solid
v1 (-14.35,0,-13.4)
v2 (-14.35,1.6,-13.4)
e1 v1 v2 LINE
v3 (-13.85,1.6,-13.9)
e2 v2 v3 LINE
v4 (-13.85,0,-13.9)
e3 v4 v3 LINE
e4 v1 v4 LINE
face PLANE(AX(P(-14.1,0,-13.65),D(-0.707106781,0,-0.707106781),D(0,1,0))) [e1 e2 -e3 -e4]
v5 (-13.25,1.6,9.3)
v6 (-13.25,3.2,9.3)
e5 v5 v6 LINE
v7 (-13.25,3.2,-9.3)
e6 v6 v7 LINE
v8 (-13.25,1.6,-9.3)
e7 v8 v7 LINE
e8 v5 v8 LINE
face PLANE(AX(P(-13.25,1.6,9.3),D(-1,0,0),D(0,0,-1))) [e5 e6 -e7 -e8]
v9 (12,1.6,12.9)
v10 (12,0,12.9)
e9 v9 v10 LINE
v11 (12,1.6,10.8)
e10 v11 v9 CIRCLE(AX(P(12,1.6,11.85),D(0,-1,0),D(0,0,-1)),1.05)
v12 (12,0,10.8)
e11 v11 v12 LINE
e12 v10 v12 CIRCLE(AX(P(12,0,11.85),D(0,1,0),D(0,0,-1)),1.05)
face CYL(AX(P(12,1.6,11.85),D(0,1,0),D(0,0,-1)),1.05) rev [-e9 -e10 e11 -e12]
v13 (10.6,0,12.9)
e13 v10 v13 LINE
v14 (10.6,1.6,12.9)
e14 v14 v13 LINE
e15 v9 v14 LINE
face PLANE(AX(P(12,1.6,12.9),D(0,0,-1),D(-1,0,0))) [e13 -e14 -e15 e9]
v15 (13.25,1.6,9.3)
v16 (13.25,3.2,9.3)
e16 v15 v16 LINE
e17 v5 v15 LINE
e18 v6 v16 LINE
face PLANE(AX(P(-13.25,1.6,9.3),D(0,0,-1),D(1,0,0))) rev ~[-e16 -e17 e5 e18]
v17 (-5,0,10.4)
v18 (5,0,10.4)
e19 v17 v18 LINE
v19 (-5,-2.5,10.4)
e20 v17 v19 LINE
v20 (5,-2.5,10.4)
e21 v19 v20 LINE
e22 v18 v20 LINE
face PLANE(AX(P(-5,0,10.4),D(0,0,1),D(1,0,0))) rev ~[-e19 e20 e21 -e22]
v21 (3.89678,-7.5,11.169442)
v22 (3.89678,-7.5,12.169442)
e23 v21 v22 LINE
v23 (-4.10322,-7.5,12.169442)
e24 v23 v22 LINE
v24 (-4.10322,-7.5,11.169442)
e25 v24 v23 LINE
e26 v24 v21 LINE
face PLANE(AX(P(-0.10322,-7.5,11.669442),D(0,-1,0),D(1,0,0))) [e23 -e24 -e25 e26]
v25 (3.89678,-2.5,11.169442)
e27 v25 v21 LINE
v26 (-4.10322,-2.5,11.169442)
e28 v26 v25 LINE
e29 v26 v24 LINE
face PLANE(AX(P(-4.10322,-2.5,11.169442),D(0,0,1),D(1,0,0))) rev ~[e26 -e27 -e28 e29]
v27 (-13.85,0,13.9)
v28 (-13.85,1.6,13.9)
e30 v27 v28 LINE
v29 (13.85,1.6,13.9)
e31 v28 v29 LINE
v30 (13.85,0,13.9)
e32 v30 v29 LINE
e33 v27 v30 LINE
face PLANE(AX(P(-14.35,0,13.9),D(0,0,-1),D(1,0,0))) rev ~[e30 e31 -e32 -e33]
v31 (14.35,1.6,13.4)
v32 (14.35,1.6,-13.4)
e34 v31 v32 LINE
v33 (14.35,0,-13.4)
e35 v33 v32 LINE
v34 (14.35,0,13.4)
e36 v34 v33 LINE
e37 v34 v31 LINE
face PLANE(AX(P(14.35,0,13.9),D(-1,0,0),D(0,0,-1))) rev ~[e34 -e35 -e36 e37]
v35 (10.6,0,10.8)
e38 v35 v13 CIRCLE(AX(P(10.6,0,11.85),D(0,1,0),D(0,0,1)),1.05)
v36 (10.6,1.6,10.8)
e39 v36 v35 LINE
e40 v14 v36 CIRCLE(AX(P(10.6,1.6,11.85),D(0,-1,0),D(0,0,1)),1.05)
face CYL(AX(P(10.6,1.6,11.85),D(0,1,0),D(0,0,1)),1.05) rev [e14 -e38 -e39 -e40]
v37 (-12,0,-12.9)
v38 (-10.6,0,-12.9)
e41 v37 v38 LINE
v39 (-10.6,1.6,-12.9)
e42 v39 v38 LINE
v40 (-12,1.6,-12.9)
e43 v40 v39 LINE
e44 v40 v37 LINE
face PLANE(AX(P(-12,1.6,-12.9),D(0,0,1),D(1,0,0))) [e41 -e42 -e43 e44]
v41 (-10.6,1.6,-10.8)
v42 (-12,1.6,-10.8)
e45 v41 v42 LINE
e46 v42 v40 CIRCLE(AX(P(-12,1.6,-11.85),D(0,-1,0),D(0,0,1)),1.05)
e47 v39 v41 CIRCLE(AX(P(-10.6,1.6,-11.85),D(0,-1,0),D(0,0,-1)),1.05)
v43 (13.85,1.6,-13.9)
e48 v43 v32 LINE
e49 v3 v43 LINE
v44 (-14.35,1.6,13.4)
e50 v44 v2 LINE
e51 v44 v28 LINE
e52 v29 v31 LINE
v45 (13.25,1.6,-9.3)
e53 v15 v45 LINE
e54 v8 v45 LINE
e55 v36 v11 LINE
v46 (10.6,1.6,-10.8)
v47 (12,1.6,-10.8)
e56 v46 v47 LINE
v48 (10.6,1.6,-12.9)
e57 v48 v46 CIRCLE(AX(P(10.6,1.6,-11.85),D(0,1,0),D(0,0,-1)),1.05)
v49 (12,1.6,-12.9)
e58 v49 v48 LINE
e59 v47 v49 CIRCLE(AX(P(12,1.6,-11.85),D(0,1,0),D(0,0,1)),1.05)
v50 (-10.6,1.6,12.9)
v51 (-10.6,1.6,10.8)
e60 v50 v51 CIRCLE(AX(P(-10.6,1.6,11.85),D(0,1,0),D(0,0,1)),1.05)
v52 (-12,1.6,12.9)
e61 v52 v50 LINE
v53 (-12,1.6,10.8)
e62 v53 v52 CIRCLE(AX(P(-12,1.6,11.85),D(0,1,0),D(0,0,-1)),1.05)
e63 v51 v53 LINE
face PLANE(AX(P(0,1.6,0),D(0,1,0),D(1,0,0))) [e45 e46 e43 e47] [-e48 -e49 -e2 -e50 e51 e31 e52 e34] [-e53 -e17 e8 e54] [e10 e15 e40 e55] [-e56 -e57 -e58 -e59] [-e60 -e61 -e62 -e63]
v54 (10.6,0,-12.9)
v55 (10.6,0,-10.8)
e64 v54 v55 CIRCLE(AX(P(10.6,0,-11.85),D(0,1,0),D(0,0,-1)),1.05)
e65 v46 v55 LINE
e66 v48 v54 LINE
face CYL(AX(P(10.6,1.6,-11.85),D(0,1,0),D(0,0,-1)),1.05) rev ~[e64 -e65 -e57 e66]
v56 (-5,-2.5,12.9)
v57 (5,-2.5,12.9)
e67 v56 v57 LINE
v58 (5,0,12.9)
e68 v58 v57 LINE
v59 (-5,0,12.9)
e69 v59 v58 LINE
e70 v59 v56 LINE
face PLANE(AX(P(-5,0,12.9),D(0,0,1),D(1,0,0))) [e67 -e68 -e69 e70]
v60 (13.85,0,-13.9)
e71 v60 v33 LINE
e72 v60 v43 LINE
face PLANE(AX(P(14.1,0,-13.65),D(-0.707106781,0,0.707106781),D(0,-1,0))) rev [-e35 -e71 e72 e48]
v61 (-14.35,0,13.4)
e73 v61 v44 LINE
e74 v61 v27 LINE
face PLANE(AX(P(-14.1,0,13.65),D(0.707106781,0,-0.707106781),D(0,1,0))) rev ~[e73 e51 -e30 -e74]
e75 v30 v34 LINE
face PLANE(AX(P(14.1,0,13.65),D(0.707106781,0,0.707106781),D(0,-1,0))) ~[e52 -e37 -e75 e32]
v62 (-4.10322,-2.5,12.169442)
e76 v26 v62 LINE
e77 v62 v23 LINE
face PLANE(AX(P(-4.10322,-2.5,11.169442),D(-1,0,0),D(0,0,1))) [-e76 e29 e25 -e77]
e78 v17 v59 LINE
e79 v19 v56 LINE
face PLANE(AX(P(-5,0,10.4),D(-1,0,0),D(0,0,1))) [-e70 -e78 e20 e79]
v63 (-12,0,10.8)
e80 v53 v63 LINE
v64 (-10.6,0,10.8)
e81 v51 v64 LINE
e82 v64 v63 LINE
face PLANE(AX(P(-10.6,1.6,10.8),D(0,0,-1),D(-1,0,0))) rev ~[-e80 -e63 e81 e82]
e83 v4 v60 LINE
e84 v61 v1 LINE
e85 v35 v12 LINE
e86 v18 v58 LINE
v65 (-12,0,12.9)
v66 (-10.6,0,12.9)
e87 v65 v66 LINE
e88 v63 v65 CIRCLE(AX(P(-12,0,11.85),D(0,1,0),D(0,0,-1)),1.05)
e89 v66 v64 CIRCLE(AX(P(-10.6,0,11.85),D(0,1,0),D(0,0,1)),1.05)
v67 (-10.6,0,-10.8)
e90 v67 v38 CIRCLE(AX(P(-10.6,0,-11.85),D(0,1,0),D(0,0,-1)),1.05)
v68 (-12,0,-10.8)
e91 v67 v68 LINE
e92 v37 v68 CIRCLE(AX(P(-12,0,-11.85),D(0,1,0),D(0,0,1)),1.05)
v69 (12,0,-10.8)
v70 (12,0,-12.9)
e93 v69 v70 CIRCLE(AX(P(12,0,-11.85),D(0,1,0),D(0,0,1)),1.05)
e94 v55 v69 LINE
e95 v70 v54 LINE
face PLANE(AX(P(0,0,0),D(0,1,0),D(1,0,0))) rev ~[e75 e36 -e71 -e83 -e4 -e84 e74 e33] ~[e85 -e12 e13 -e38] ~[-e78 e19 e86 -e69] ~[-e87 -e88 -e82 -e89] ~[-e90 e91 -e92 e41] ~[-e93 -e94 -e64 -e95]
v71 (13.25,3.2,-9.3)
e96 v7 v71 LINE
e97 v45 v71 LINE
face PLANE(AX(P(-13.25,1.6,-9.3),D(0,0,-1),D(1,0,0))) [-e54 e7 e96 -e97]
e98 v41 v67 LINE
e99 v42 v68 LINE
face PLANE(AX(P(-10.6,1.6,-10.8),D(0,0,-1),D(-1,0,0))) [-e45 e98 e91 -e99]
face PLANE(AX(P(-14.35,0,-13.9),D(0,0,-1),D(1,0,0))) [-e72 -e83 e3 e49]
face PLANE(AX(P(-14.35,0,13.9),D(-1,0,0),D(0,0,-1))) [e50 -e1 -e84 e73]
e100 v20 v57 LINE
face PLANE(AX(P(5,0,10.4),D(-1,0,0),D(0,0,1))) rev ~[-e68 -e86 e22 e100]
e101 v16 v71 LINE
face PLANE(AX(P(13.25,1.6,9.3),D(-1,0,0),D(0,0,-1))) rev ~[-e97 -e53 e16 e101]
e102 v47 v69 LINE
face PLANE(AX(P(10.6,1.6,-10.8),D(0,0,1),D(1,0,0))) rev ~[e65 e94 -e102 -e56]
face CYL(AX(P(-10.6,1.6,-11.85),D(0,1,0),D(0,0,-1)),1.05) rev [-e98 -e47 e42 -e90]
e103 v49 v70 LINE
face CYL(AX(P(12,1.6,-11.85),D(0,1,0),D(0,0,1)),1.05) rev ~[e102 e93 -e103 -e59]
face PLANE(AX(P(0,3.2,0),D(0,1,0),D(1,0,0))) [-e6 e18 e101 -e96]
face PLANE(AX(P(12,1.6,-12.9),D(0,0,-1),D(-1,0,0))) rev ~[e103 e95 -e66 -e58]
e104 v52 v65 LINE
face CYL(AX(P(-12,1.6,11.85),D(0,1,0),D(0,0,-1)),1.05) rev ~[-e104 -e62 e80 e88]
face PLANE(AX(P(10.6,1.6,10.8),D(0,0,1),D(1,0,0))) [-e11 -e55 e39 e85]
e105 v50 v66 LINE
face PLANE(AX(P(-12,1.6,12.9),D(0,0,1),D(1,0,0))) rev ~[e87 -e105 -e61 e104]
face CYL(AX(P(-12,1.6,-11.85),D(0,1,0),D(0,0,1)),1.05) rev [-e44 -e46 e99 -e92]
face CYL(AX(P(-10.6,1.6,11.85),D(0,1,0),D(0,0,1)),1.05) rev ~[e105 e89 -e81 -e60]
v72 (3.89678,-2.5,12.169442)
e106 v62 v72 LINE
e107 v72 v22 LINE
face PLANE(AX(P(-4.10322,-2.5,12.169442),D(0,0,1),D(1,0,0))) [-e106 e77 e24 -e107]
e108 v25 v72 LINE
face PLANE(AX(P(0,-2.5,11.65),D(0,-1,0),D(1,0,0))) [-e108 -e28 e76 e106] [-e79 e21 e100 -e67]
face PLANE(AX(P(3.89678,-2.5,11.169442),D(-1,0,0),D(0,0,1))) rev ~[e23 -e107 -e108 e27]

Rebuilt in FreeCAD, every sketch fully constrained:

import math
import FreeCAD as App
import Part
import Sketcher
Q = App.Units.Quantity


def edges_at(feature, points):
    """Names of the edges that pass closest to the given points."""
    edges = feature.Shape.Edges
    near = lambda p: min(range(len(edges)), key=lambda i: edges[i].distToShape(Part.Vertex(*p))[0])
    return sorted({f"Edge{near(p) + 1}" for p in points})


def add_polygon(sketch, points):
    """Adds a closed chain of lines whose ends are joined by coincident constraints."""
    first, n = sketch.GeometryCount, len(points)
    for a, b in zip(points, points[1:] + points[:1]):
        sketch.addGeometry(Part.LineSegment(App.Vector(*a, 0), App.Vector(*b, 0)), False)
    for i in range(n):
        sketch.addConstraint(Sketcher.Constraint("Coincident", first + i, 2, first + (i + 1) % n, 1))

doc = App.newDocument("Part")
body = doc.addObject("PartDesign::Body", "Body")

sketch1 = body.newObject("Sketcher::SketchObject", "Sketch")
sketch1.AttachmentSupport = (doc.getObject("XZ_Plane"), [""])
sketch1.MapMode = "FlatFace"
add_polygon(sketch1, [(-14.35, -13.9), (-14.35, 13.9), (14.35, 13.9), (14.35, -13.9)])
sketch1.addConstraint(Sketcher.Constraint("Vertical", 0))
sketch1.addConstraint(Sketcher.Constraint("Horizontal", 1))
sketch1.addConstraint(Sketcher.Constraint("Vertical", 2))
sketch1.addConstraint(Sketcher.Constraint("Horizontal", 3))
sketch1.addConstraint(Sketcher.Constraint("Symmetric", 0, 2, 2, 2, -1, 1))
sketch1.addConstraint(Sketcher.Constraint("DistanceX", 1, 1, 1, 2, Q("28.7 mm")))
sketch1.addConstraint(Sketcher.Constraint("DistanceY", 0, 1, 0, 2, Q("27.8 mm")))
pad1 = body.newObject("PartDesign::Pad", "Pad")
pad1.Profile = sketch1
pad1.Length = 1.6
pad1.Reversed = True

sketch2 = body.newObject("Sketcher::SketchObject", "Sketch001")
sketch2.AttachmentSupport = (doc.getObject("XZ_Plane"), [""])
sketch2.MapMode = "FlatFace"
sketch2.AttachmentOffset = App.Placement(App.Vector(0, 0, -1.6), App.Rotation())
add_polygon(sketch2, [(-13.25, -9.3), (-13.25, 9.3), (13.25, 9.3), (13.25, -9.3)])
sketch2.addConstraint(Sketcher.Constraint("Vertical", 0))
sketch2.addConstraint(Sketcher.Constraint("Horizontal", 1))
sketch2.addConstraint(Sketcher.Constraint("Vertical", 2))
sketch2.addConstraint(Sketcher.Constraint("Horizontal", 3))
sketch2.addConstraint(Sketcher.Constraint("Symmetric", 0, 2, 2, 2, -1, 1))
sketch2.addConstraint(Sketcher.Constraint("DistanceX", 1, 1, 1, 2, Q("26.5 mm")))
sketch2.addConstraint(Sketcher.Constraint("DistanceY", 0, 1, 0, 2, Q("18.6 mm")))
pad2 = body.newObject("PartDesign::Pad", "Pad001")
pad2.Profile = sketch2
pad2.Length = 1.6
pad2.Reversed = True

sketch3 = body.newObject("Sketcher::SketchObject", "Sketch002")
sketch3.AttachmentSupport = (doc.getObject("XZ_Plane"), [""])
sketch3.MapMode = "FlatFace"
sketch3.AttachmentOffset = App.Placement(App.Vector(0, 0, -1.6), App.Rotation())
sketch3.addGeometry(Part.LineSegment(App.Vector(-10.6, -12.9, 0), App.Vector(-12, -12.9, 0)), False)
sketch3.addGeometry(Part.ArcOfCircle(Part.Circle(App.Vector(-12, -11.85, 0), App.Vector(0, 0, 1), 1.05), math.radians(90), math.radians(270)), False)
sketch3.addGeometry(Part.LineSegment(App.Vector(-12, -10.8, 0), App.Vector(-10.6, -10.8, 0)), False)
sketch3.addGeometry(Part.ArcOfCircle(Part.Circle(App.Vector(-10.6, -11.85, 0), App.Vector(0, 0, 1), 1.05), math.radians(-90), math.radians(90)), False)
sketch3.addGeometry(Part.LineSegment(App.Vector(12, -12.9, 0), App.Vector(10.6, -12.9, 0)), False)
sketch3.addGeometry(Part.ArcOfCircle(Part.Circle(App.Vector(10.6, -11.85, 0), App.Vector(0, 0, 1), 1.05), math.radians(90), math.radians(270)), False)
sketch3.addGeometry(Part.LineSegment(App.Vector(10.6, -10.8, 0), App.Vector(12, -10.8, 0)), False)
sketch3.addGeometry(Part.ArcOfCircle(Part.Circle(App.Vector(12, -11.85, 0), App.Vector(0, 0, 1), 1.05), math.radians(-90), math.radians(90)), False)
sketch3.addGeometry(Part.LineSegment(App.Vector(10.6, 12.9, 0), App.Vector(12, 12.9, 0)), False)
sketch3.addGeometry(Part.ArcOfCircle(Part.Circle(App.Vector(12, 11.85, 0), App.Vector(0, 0, 1), 1.05), math.radians(-90), math.radians(90)), False)
sketch3.addGeometry(Part.LineSegment(App.Vector(12, 10.8, 0), App.Vector(10.6, 10.8, 0)), False)
sketch3.addGeometry(Part.ArcOfCircle(Part.Circle(App.Vector(10.6, 11.85, 0), App.Vector(0, 0, 1), 1.05), math.radians(90), math.radians(270)), False)
sketch3.addGeometry(Part.LineSegment(App.Vector(-12, 12.9, 0), App.Vector(-10.6, 12.9, 0)), False)
sketch3.addGeometry(Part.ArcOfCircle(Part.Circle(App.Vector(-10.6, 11.85, 0), App.Vector(0, 0, 1), 1.05), math.radians(-90), math.radians(90)), False)
sketch3.addGeometry(Part.LineSegment(App.Vector(-10.6, 10.8, 0), App.Vector(-12, 10.8, 0)), False)
sketch3.addGeometry(Part.ArcOfCircle(Part.Circle(App.Vector(-12, 11.85, 0), App.Vector(0, 0, 1), 1.05), math.radians(90), math.radians(270)), False)
sketch3.addConstraint(Sketcher.Constraint("Tangent", 0, 2, 1, 2))
sketch3.addConstraint(Sketcher.Constraint("Tangent", 1, 1, 2, 1))
sketch3.addConstraint(Sketcher.Constraint("Tangent", 2, 2, 3, 2))
sketch3.addConstraint(Sketcher.Constraint("Tangent", 3, 1, 0, 1))
sketch3.addConstraint(Sketcher.Constraint("Tangent", 4, 2, 5, 2))
sketch3.addConstraint(Sketcher.Constraint("Tangent", 5, 1, 6, 1))
sketch3.addConstraint(Sketcher.Constraint("Tangent", 6, 2, 7, 2))
sketch3.addConstraint(Sketcher.Constraint("Tangent", 7, 1, 4, 1))
sketch3.addConstraint(Sketcher.Constraint("Tangent", 8, 2, 9, 2))
sketch3.addConstraint(Sketcher.Constraint("Tangent", 9, 1, 10, 1))
sketch3.addConstraint(Sketcher.Constraint("Tangent", 10, 2, 11, 2))
sketch3.addConstraint(Sketcher.Constraint("Tangent", 11, 1, 8, 1))
sketch3.addConstraint(Sketcher.Constraint("Tangent", 12, 2, 13, 2))
sketch3.addConstraint(Sketcher.Constraint("Tangent", 13, 1, 14, 1))
sketch3.addConstraint(Sketcher.Constraint("Tangent", 14, 2, 15, 2))
sketch3.addConstraint(Sketcher.Constraint("Tangent", 15, 1, 12, 1))
sketch3.addConstraint(Sketcher.Constraint("Horizontal", 0))
sketch3.addConstraint(Sketcher.Constraint("Horizontal", 2))
sketch3.addConstraint(Sketcher.Constraint("Horizontal", 4))
sketch3.addConstraint(Sketcher.Constraint("Horizontal", 6))
sketch3.addConstraint(Sketcher.Constraint("Horizontal", 8))
sketch3.addConstraint(Sketcher.Constraint("Horizontal", 10))
sketch3.addConstraint(Sketcher.Constraint("Horizontal", 12))
sketch3.addConstraint(Sketcher.Constraint("Horizontal", 14))
sketch3.addConstraint(Sketcher.Constraint("Equal", 3, 5))
sketch3.addConstraint(Sketcher.Constraint("Equal", 7, 9))
sketch3.addConstraint(Sketcher.Constraint("Equal", 11, 13))
sketch3.addConstraint(Sketcher.Constraint("Symmetric", 1, 3, 9, 3, -1, 1))
sketch3.addConstraint(Sketcher.Constraint("Symmetric", 5, 3, 13, 3, -1, 1))
sketch3.addConstraint(Sketcher.Constraint("Symmetric", 3, 3, 5, 3, -2))
sketch3.addConstraint(Sketcher.Constraint("Vertical", 7, 3, 9, 3))
sketch3.addConstraint(Sketcher.Constraint("Vertical", 5, 3, 11, 3))
sketch3.addConstraint(Sketcher.Constraint("Vertical", 1, 3, 15, 3))
sketch3.addConstraint(Sketcher.Constraint("Radius", 1, Q("1.05 mm")))
sketch3.addConstraint(Sketcher.Constraint("DistanceX", 0, 2, 0, 1, Q("1.4 mm")))
sketch3.addConstraint(Sketcher.Constraint("DistanceX", 1, 3, -1, 1, Q("12 mm")))
sketch3.addConstraint(Sketcher.Constraint("DistanceY", 0, 2, -1, 1, Q("12.9 mm")))
pocket1 = body.newObject("PartDesign::Pocket", "Pocket")
pocket1.Profile = sketch3
pocket1.Type = "ThroughAll"
pocket1.Reversed = True
doc.recompute()

chamfer = body.newObject("PartDesign::Chamfer", "Chamfer")
chamfer.Base = (pocket1, edges_at(pocket1, [
    (14.35, 0.8, 13.9),
    (-14.35, 0.8, 13.9),
    (-14.35, 0.8, -13.9),
    (14.35, 0.8, -13.9),
]))
chamfer.Size = 0.5

sketch4 = body.newObject("Sketcher::SketchObject", "Sketch003")
sketch4.AttachmentSupport = (doc.getObject("XZ_Plane"), [""])
sketch4.MapMode = "FlatFace"
add_polygon(sketch4, [(-5, 12.9), (-5, 10.4), (5, 10.4), (5, 12.9)])
sketch4.addConstraint(Sketcher.Constraint("Vertical", 0))
sketch4.addConstraint(Sketcher.Constraint("Horizontal", 1))
sketch4.addConstraint(Sketcher.Constraint("Vertical", 2))
sketch4.addConstraint(Sketcher.Constraint("Horizontal", 3))
sketch4.addConstraint(Sketcher.Constraint("DistanceX", 1, 1, 1, 2, Q("10 mm")))
sketch4.addConstraint(Sketcher.Constraint("DistanceY", 0, 2, 0, 1, Q("2.5 mm")))
sketch4.addConstraint(Sketcher.Constraint("DistanceX", 0, 2, -1, 1, Q("5 mm")))
sketch4.addConstraint(Sketcher.Constraint("DistanceY", -1, 1, 0, 2, Q("10.4 mm")))
pad3 = body.newObject("PartDesign::Pad", "Pad002")
pad3.Profile = sketch4
pad3.Length = 2.5

sketch5 = body.newObject("Sketcher::SketchObject", "Sketch004")
sketch5.AttachmentSupport = (doc.getObject("XZ_Plane"), [""])
sketch5.MapMode = "FlatFace"
sketch5.AttachmentOffset = App.Placement(App.Vector(0, 0, 2.5), App.Rotation())
add_polygon(sketch5, [(-4.10322, 12.169442), (-4.10322, 11.169442), (3.89678, 11.169442), (3.89678, 12.169442)])
sketch5.addConstraint(Sketcher.Constraint("Vertical", 0))
sketch5.addConstraint(Sketcher.Constraint("Horizontal", 1))
sketch5.addConstraint(Sketcher.Constraint("Vertical", 2))
sketch5.addConstraint(Sketcher.Constraint("Horizontal", 3))
sketch5.addConstraint(Sketcher.Constraint("DistanceX", 1, 1, 1, 2, Q("8 mm")))
sketch5.addConstraint(Sketcher.Constraint("DistanceY", 0, 2, 0, 1, Q("1 mm")))
sketch5.addConstraint(Sketcher.Constraint("DistanceX", 0, 2, -1, 1, Q("4.10322 mm")))
sketch5.addConstraint(Sketcher.Constraint("DistanceY", -1, 1, 0, 2, Q("11.169442 mm")))
pad4 = body.newObject("PartDesign::Pad", "Pad003")
pad4.Profile = sketch5
pad4.Length = 5

doc.recompute()
